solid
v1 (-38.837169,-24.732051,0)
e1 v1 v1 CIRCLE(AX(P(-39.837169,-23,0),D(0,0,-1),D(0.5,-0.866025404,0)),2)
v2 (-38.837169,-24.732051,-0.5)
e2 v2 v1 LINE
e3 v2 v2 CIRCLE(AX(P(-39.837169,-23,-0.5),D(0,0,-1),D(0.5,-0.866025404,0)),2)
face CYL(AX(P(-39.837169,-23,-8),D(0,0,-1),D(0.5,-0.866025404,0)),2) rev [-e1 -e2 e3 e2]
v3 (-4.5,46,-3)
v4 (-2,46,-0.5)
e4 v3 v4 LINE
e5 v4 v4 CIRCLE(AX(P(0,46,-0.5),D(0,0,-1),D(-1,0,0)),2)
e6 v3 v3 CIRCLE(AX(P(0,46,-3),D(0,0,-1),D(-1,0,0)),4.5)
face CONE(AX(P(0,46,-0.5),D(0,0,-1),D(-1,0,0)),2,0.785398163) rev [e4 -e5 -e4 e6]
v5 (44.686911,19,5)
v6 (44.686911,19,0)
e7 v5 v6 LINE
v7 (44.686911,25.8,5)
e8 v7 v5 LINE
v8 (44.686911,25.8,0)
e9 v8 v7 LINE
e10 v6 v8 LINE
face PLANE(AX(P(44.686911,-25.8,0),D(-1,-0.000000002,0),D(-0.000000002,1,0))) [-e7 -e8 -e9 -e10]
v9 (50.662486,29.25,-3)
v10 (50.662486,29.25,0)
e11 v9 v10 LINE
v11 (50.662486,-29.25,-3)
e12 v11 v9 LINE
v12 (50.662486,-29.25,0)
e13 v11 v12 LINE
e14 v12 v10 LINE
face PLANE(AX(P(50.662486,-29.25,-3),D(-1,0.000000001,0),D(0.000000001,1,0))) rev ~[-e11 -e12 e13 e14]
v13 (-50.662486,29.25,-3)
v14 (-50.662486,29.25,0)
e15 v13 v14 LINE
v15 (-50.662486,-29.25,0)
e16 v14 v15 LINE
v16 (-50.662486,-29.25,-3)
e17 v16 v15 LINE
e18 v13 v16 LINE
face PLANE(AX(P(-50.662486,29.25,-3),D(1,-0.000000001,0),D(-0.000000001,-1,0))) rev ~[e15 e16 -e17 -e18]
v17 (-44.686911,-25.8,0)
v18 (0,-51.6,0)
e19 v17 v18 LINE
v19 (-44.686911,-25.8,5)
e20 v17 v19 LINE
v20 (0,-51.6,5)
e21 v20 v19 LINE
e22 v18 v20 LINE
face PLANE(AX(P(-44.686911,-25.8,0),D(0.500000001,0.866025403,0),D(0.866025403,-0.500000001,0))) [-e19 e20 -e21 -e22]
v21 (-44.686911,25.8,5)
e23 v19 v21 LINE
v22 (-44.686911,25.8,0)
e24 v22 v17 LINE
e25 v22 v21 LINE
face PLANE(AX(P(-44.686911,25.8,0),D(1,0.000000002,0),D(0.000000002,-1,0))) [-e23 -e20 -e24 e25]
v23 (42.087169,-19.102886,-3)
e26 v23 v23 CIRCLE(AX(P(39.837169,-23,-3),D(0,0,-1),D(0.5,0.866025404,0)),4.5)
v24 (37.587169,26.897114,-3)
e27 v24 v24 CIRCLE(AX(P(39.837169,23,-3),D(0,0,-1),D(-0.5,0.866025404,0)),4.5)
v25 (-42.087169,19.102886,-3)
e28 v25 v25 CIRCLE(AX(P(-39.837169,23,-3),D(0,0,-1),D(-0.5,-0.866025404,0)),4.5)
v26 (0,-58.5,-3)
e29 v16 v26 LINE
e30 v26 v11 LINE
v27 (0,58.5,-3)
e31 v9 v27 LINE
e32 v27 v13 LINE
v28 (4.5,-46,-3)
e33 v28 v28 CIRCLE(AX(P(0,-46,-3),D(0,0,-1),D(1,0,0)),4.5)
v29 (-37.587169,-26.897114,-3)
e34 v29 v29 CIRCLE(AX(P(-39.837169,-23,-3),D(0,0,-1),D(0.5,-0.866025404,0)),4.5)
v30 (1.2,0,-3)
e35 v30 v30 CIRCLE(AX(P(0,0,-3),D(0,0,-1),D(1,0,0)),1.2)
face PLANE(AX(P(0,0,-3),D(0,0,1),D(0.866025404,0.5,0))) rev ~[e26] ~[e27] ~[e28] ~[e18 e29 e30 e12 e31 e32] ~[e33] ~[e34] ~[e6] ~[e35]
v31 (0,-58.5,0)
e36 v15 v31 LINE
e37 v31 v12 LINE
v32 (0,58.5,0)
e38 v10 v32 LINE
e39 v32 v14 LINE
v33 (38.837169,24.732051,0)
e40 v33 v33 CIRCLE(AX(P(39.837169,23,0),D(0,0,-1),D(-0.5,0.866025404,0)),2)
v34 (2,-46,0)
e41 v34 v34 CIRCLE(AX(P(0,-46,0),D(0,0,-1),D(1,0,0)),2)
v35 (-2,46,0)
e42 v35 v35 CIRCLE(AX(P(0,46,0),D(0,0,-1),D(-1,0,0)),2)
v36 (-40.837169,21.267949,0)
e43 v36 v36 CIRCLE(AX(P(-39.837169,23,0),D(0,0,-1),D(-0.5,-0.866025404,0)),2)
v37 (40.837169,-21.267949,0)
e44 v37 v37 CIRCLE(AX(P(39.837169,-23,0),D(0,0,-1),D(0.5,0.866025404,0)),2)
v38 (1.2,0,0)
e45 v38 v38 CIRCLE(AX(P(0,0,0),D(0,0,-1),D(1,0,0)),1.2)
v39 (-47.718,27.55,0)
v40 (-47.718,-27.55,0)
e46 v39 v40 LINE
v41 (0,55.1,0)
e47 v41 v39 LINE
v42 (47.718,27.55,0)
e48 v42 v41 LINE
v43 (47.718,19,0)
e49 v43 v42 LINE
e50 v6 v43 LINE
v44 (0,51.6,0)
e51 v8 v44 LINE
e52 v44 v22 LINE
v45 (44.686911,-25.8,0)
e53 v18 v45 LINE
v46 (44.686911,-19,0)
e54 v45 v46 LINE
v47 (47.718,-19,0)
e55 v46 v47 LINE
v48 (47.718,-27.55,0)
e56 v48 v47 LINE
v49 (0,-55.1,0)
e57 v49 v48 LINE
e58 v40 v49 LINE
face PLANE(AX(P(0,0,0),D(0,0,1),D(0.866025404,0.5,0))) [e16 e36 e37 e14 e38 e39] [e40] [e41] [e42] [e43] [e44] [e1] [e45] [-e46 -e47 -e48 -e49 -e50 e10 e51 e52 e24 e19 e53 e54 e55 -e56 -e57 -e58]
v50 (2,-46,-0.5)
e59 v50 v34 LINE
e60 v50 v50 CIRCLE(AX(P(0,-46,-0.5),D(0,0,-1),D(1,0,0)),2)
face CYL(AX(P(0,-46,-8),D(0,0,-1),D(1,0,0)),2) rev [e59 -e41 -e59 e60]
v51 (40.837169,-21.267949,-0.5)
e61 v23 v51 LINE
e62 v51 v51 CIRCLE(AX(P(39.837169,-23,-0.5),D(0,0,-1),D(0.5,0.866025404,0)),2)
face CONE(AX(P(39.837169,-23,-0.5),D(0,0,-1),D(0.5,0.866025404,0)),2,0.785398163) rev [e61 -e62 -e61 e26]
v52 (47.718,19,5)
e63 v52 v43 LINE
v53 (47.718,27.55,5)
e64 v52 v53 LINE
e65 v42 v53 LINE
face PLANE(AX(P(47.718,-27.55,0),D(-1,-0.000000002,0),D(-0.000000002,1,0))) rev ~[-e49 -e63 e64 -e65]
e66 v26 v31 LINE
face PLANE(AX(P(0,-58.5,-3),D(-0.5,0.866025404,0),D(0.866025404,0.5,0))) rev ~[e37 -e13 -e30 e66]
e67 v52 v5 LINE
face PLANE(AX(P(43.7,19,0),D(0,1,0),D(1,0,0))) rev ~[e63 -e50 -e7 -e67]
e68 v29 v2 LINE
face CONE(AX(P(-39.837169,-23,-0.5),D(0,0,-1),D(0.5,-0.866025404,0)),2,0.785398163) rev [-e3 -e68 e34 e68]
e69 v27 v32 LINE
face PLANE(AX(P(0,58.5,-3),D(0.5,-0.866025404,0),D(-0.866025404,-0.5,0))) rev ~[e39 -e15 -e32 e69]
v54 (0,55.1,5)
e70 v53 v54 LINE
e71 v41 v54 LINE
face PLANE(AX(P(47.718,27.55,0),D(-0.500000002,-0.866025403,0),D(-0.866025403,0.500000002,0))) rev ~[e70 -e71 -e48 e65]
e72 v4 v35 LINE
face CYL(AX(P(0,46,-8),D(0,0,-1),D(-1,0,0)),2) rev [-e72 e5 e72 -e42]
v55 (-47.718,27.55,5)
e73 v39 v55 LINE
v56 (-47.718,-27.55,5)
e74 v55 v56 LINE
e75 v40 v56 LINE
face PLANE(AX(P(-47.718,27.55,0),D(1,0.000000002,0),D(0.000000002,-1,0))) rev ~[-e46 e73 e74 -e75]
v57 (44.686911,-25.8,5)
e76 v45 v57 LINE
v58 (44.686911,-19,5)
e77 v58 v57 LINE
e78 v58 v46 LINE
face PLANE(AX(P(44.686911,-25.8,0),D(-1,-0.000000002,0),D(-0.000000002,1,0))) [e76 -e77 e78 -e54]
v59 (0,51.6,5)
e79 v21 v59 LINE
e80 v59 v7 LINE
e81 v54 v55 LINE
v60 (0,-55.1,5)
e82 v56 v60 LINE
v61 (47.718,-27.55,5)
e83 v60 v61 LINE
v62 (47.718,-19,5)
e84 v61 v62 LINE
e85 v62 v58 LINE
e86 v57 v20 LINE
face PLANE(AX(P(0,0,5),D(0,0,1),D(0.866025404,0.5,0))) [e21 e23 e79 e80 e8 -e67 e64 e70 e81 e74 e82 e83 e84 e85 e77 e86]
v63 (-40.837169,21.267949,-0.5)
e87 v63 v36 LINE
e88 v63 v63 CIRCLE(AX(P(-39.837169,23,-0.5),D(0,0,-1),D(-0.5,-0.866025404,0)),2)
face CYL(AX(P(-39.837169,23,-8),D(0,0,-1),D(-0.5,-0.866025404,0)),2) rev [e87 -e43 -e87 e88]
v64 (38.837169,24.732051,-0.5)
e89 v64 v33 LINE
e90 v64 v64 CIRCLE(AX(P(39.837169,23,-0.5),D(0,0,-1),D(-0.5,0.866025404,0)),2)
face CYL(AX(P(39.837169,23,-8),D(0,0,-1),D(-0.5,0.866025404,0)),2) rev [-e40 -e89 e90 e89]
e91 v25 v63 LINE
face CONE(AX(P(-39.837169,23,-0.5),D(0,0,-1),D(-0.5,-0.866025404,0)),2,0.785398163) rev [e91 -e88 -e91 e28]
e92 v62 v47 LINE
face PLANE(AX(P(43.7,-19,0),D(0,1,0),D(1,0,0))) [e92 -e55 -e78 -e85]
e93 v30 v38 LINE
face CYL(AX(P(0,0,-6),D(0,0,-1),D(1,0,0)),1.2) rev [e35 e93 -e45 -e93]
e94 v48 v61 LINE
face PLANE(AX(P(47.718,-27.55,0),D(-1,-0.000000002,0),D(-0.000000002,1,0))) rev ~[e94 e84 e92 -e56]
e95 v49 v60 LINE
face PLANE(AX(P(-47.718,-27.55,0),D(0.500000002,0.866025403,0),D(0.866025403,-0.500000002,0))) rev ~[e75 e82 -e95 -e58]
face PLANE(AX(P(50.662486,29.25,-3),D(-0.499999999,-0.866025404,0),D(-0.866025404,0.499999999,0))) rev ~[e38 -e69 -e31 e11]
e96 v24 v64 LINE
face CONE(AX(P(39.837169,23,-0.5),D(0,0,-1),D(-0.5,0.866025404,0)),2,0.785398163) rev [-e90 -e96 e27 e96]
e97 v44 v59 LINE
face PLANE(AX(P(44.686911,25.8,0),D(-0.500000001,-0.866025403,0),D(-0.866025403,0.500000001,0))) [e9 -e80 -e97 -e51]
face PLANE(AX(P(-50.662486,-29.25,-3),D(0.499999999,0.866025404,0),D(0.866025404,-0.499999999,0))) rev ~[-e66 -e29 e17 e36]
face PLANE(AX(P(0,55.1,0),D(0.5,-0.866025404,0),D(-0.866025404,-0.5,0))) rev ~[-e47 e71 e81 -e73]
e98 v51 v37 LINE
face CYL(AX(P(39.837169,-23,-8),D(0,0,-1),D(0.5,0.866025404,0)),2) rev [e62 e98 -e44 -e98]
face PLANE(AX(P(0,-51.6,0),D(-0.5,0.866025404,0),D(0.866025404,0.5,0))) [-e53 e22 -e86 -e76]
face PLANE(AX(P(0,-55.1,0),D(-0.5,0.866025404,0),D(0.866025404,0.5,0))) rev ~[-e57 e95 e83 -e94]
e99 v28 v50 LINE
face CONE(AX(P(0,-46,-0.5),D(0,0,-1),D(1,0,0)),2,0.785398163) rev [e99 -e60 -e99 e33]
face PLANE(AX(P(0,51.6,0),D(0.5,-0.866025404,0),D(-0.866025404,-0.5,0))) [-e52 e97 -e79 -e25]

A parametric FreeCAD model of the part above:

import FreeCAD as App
import Part
import Sketcher
from FreeCAD import Vector
Q = App.Units.Quantity


def edges_at(feature, points):
    """Names of the edges that pass closest to the given points."""
    edges = feature.Shape.Edges
    near = lambda p: min(range(len(edges)), key=lambda i: edges[i].distToShape(Part.Vertex(*p))[0])
    return sorted({f"Edge{near(p) + 1}" for p in points})


def add_polygon(sketch, points):
    """Adds a closed chain of lines whose ends are joined by coincident constraints."""
    first, n = sketch.GeometryCount, len(points)
    for a, b in zip(points, points[1:] + points[:1]):
        sketch.addGeometry(Part.LineSegment(App.Vector(*a, 0), App.Vector(*b, 0)), False)
    for i in range(n):
        sketch.addConstraint(Sketcher.Constraint("Coincident", first + i, 2, first + (i + 1) % n, 1))

doc = App.newDocument("Part")
params = doc.addObject("Spreadsheet::Sheet", "Params")
for row, (alias, value) in enumerate([
    ("sketch1_diameter", "4 mm"),
    ("pad1_length", "21 mm"),
    ("sketch2_diameter", "2.4 mm"),
    ("pad2_length", "10 mm"),
    ("sketch3_width", "58.5 mm"),
    ("pad3_length", "3 mm"),
    ("sketch4_width", "5 mm"),
    ("sketch4_height", "38 mm"),
    ("pad4_length", "10 mm"),
    ("sketch5_width", "51.6 mm"),
    ("sketch5_length", "51.6 mm"),
    ("pad5_length", "11 mm"),
    ("sketch6_width", "55.1 mm"),
    ("sketch6_length", "55.1 mm"),
    ("pad6_length", "5 mm"),
    ("chamfer_size", "2.5 mm"),
], start=1):
    params.set(f"A{row}", alias)
    params.set(f"B{row}", "=" + value)
    params.setAlias(f"B{row}", alias)

body = doc.addObject("PartDesign::Body", "Body")

# Sketch on XY plane
sketch1 = body.newObject("Sketcher::SketchObject", "Sketch")
sketch1.AttachmentSupport = (doc.getObject("XY_Plane"), [""])
sketch1.MapMode = "FlatFace"
sketch1.AttachmentOffset = App.Placement(Vector(0, 0, -8), App.Rotation())
sketch1.addGeometry(Part.Circle(Vector(0, -46, 0), Vector(0, 0, 1), 2), False)
sketch1.addConstraint([
    Sketcher.Constraint("PointOnObject", 0, 3, -2),
    Sketcher.Constraint("Diameter", 0, Q("4 mm")),
    Sketcher.Constraint("DistanceY", 0, 3, -1, 1, Q("46 mm")),
])
sketch1.setExpression("Constraints[1]", "Params.sketch1_diameter")
pad1 = body.newObject("PartDesign::Pad", "Pad")
pad1.Profile = sketch1
pad1.setExpression("Length", "Params.pad1_length")
body2 = doc.addObject("PartDesign::Body", "Body001")
body2.AllowCompound = True
doc.recompute()

body2.BaseFeature = body
doc.recompute()

body3 = doc.addObject("PartDesign::Body", "Body002")
body3.BaseFeature = body
body3.Placement = App.Placement(Vector(0, 0, 0), App.Rotation(Vector(0, 0, 1), 60))
boolean = body2.newObject("PartDesign::Boolean", "Boolean")
boolean.Type = "Fuse"
boolean.addObjects([body3])
doc.recompute()

body4 = doc.addObject("PartDesign::Body", "Body003")
body4.BaseFeature = body
body4.Placement = App.Placement(Vector(0, 0, 0), App.Rotation(Vector(0, 0, 1), 120))
boolean2 = body2.newObject("PartDesign::Boolean", "Boolean001")
boolean2.Type = "Fuse"
boolean2.addObjects([body4])
doc.recompute()

body5 = doc.addObject("PartDesign::Body", "Body004")
body5.BaseFeature = body
body5.Placement = App.Placement(Vector(0, 0, 0), App.Rotation(Vector(0, 0, 1), 180))
boolean3 = body2.newObject("PartDesign::Boolean", "Boolean002")
boolean3.Type = "Fuse"
boolean3.addObjects([body5])
doc.recompute()

body6 = doc.addObject("PartDesign::Body", "Body005")
body6.BaseFeature = body
body6.Placement = App.Placement(Vector(0, 0, 0), App.Rotation(Vector(0, 0, 1), 240))
boolean4 = body2.newObject("PartDesign::Boolean", "Boolean003")
boolean4.Type = "Fuse"
boolean4.addObjects([body6])
doc.recompute()

body.Placement = App.Placement(Vector(0, 0, 0), App.Rotation(Vector(0, 0, 1), 300))
boolean5 = body2.newObject("PartDesign::Boolean", "Boolean004")
boolean5.Type = "Fuse"
boolean5.addObjects([body])
body7 = doc.addObject("PartDesign::Body", "Body006")

# Sketch on XY plane
sketch2 = body7.newObject("Sketcher::SketchObject", "Sketch001")
sketch2.AttachmentSupport = (doc.getObject("XY_Plane006"), [""])
sketch2.MapMode = "FlatFace"
sketch2.AttachmentOffset = App.Placement(Vector(0, 0, -6), App.Rotation())
sketch2.addGeometry(Part.Circle(Vector(0, 0, 0), Vector(0, 0, 1), 1.2), False)
sketch2.addConstraint([
    Sketcher.Constraint("Coincident", 0, 3, -1, 1),
    Sketcher.Constraint("Diameter", 0, Q("2.4 mm")),
])
sketch2.setExpression("Constraints[1]", "Params.sketch2_diameter")
pad2 = body7.newObject("PartDesign::Pad", "Pad001")
pad2.Profile = sketch2
pad2.setExpression("Length", "Params.pad2_length")
body8 = doc.addObject("PartDesign::Body", "Body007")

# Sketch on XY plane
sketch3 = body8.newObject("Sketcher::SketchObject", "Sketch002")
sketch3.AttachmentSupport = (doc.getObject("XY_Plane007"), [""])
sketch3.MapMode = "FlatFace"
add_polygon(sketch3, [(58, 0), (29, 51), (-29, 51), (-58, 0), (-29, -51), (29, -51)])  # lines 0-5
sketch3.addConstraint([
    Sketcher.Constraint("Horizontal", 1),
    Sketcher.Constraint("Horizontal", 4),
    Sketcher.Constraint("Symmetric", 0, 2, 3, 2, -1, 1),
    Sketcher.Constraint("Symmetric", 2, 2, 5, 2, -1, 1),
    Sketcher.Constraint("PointOnObject", 2, 2, -1),
    Sketcher.Constraint("Parallel", 2, 5),
    Sketcher.Constraint("Vertical", 1, 2, 3, 2),
    Sketcher.Constraint("Angle", 0, Q("120 deg")),
    Sketcher.Constraint("DistanceX", 1, 2, 1, 1, Q("58.5 mm")),
    Sketcher.Constraint("DistanceX", 2, 2, 5, 2, Q("117 mm")),
])
sketch3.setExpression("Constraints[14]", "Params.sketch3_width")
pad3 = body8.newObject("PartDesign::Pad", "Pad002")
pad3.Profile = sketch3
pad3.setExpression("Length", "Params.pad3_length")
body9 = doc.addObject("PartDesign::Body", "Body008")
doc.recompute()

body8.Placement = App.Placement(Vector(0, 0, -3), App.Rotation(Vector(0, 0, 1), 30))
boolean6 = body9.newObject("PartDesign::Boolean", "Boolean005")
boolean6.Type = "Fuse"
boolean6.addObjects([body8])
doc.recompute()

boolean7 = body9.newObject("PartDesign::Boolean", "Boolean006")
boolean7.Type = "Cut"
boolean7.addObjects([body7])
body10 = doc.addObject("PartDesign::Body", "Body009")

# Sketch on XY plane
sketch4 = body10.newObject("Sketcher::SketchObject", "Sketch003")
sketch4.AttachmentSupport = (doc.getObject("XY_Plane009"), [""])
sketch4.MapMode = "FlatFace"
add_polygon(sketch4, [(44, 19), (44, -19), (49, -19), (49, 19)])  # lines 0-3
sketch4.addConstraint([
    Sketcher.Constraint("Vertical", 0),
    Sketcher.Constraint("Horizontal", 1),
    Sketcher.Constraint("Vertical", 2),
    Sketcher.Constraint("Horizontal", 3),
    Sketcher.Constraint("DistanceX", 1, 1, 1, 2, Q("5 mm")),
    Sketcher.Constraint("DistanceY", 0, 2, 0, 1, Q("38 mm")),
    Sketcher.Constraint("DistanceY", 0, 2, -1, 1, Q("19 mm")),
    Sketcher.Constraint("DistanceX", -1, 1, 0, 2, Q("43.7 mm")),
])
sketch4.setExpression("Constraints[8]", "Params.sketch4_width")
sketch4.setExpression("Constraints[9]", "Params.sketch4_height")
pad4 = body10.newObject("PartDesign::Pad", "Pad003")
pad4.Profile = sketch4
pad4.setExpression("Length", "Params.pad4_length")
body11 = doc.addObject("PartDesign::Body", "Body010")

# Sketch on XY plane
sketch5 = body11.newObject("Sketcher::SketchObject", "Sketch004")
sketch5.AttachmentSupport = (doc.getObject("XY_Plane010"), [""])
sketch5.MapMode = "FlatFace"
add_polygon(sketch5, [(52, 0), (26, 45), (-26, 45), (-52, 0), (-26, -45), (26, -45)])  # lines 0-5
sketch5.addConstraint([
    Sketcher.Constraint("Horizontal", 1),
    Sketcher.Constraint("Horizontal", 4),
    Sketcher.Constraint("Symmetric", 0, 2, 3, 2, -1, 1),
    Sketcher.Constraint("Symmetric", 2, 2, 5, 2, -1, 1),
    Sketcher.Constraint("PointOnObject", 2, 2, -1),
    Sketcher.Constraint("Parallel", 2, 5),
    Sketcher.Constraint("Vertical", 1, 2, 3, 2),
    Sketcher.Constraint("Angle", 0, Q("120 deg")),
    Sketcher.Constraint("DistanceX", 1, 2, 1, 1, Q("51.6 mm")),
    Sketcher.Constraint("Distance", 0, Q("51.6 mm")),
])
sketch5.setExpression("Constraints[14]", "Params.sketch5_width")
sketch5.setExpression("Constraints[15]", "Params.sketch5_length")
pad5 = body11.newObject("PartDesign::Pad", "Pad004")
pad5.Profile = sketch5
pad5.setExpression("Length", "Params.pad5_length")
body12 = doc.addObject("PartDesign::Body", "Body011")
doc.recompute()

body11.Placement = App.Placement(Vector(0, 0, 0), App.Rotation(Vector(0, 0, 1), 30))
boolean8 = body12.newObject("PartDesign::Boolean", "Boolean007")
boolean8.Type = "Fuse"
boolean8.addObjects([body11])
body13 = doc.addObject("PartDesign::Body", "Body012")

# Sketch on XY plane
sketch6 = body13.newObject("Sketcher::SketchObject", "Sketch005")
sketch6.AttachmentSupport = (doc.getObject("XY_Plane012"), [""])
sketch6.MapMode = "FlatFace"
add_polygon(sketch6, [(55, 0), (28, 48), (-28, 48), (-55, 0), (-28, -48), (28, -48)])  # lines 0-5
sketch6.addConstraint([
    Sketcher.Constraint("Horizontal", 1),
    Sketcher.Constraint("Horizontal", 4),
    Sketcher.Constraint("Symmetric", 0, 2, 3, 2, -1, 1),
    Sketcher.Constraint("Symmetric", 2, 2, 5, 2, -1, 1),
    Sketcher.Constraint("PointOnObject", 2, 2, -1),
    Sketcher.Constraint("Parallel", 2, 5),
    Sketcher.Constraint("Vertical", 1, 2, 3, 2),
    Sketcher.Constraint("Angle", 0, Q("120 deg")),
    Sketcher.Constraint("DistanceX", 1, 2, 1, 1, Q("55.1 mm")),
    Sketcher.Constraint("Distance", 0, Q("55.1 mm")),
])
sketch6.setExpression("Constraints[14]", "Params.sketch6_width")
sketch6.setExpression("Constraints[15]", "Params.sketch6_length")
pad6 = body13.newObject("PartDesign::Pad", "Pad005")
pad6.Profile = sketch6
pad6.setExpression("Length", "Params.pad6_length")
body14 = doc.addObject("PartDesign::Body", "Body013")
doc.recompute()

body13.Placement = App.Placement(Vector(0, 0, 0), App.Rotation(Vector(0, 0, 1), 30))
boolean9 = body14.newObject("PartDesign::Boolean", "Boolean008")
boolean9.Type = "Fuse"
boolean9.addObjects([body13])
doc.recompute()

boolean10 = body14.newObject("PartDesign::Boolean", "Boolean009")
boolean10.Type = "Cut"
boolean10.addObjects([body12])
doc.recompute()

boolean11 = body14.newObject("PartDesign::Boolean", "Boolean010")
boolean11.Type = "Cut"
boolean11.addObjects([body10])
doc.recompute()

boolean12 = body14.newObject("PartDesign::Boolean", "Boolean011")
boolean12.Type = "Fuse"
boolean12.addObjects([body9])
doc.recompute()

boolean13 = body14.newObject("PartDesign::Boolean", "Boolean012")
boolean13.Type = "Cut"
boolean13.addObjects([body2])
doc.recompute()

chamfer = body14.newObject("PartDesign::Chamfer", "Chamfer")
chamfer.Base = (boolean13, edges_at(boolean13, [
    (-2, -46, -3),
    (38.837, -24.732, -3),
    (2, 46, -3),
    (-38.837, 24.732, -3),
    (-40.837, -21.268, -3),
    (40.837, 21.268, -3),
]))
chamfer.setExpression("Size", "Params.chamfer_size")

doc.recompute()
